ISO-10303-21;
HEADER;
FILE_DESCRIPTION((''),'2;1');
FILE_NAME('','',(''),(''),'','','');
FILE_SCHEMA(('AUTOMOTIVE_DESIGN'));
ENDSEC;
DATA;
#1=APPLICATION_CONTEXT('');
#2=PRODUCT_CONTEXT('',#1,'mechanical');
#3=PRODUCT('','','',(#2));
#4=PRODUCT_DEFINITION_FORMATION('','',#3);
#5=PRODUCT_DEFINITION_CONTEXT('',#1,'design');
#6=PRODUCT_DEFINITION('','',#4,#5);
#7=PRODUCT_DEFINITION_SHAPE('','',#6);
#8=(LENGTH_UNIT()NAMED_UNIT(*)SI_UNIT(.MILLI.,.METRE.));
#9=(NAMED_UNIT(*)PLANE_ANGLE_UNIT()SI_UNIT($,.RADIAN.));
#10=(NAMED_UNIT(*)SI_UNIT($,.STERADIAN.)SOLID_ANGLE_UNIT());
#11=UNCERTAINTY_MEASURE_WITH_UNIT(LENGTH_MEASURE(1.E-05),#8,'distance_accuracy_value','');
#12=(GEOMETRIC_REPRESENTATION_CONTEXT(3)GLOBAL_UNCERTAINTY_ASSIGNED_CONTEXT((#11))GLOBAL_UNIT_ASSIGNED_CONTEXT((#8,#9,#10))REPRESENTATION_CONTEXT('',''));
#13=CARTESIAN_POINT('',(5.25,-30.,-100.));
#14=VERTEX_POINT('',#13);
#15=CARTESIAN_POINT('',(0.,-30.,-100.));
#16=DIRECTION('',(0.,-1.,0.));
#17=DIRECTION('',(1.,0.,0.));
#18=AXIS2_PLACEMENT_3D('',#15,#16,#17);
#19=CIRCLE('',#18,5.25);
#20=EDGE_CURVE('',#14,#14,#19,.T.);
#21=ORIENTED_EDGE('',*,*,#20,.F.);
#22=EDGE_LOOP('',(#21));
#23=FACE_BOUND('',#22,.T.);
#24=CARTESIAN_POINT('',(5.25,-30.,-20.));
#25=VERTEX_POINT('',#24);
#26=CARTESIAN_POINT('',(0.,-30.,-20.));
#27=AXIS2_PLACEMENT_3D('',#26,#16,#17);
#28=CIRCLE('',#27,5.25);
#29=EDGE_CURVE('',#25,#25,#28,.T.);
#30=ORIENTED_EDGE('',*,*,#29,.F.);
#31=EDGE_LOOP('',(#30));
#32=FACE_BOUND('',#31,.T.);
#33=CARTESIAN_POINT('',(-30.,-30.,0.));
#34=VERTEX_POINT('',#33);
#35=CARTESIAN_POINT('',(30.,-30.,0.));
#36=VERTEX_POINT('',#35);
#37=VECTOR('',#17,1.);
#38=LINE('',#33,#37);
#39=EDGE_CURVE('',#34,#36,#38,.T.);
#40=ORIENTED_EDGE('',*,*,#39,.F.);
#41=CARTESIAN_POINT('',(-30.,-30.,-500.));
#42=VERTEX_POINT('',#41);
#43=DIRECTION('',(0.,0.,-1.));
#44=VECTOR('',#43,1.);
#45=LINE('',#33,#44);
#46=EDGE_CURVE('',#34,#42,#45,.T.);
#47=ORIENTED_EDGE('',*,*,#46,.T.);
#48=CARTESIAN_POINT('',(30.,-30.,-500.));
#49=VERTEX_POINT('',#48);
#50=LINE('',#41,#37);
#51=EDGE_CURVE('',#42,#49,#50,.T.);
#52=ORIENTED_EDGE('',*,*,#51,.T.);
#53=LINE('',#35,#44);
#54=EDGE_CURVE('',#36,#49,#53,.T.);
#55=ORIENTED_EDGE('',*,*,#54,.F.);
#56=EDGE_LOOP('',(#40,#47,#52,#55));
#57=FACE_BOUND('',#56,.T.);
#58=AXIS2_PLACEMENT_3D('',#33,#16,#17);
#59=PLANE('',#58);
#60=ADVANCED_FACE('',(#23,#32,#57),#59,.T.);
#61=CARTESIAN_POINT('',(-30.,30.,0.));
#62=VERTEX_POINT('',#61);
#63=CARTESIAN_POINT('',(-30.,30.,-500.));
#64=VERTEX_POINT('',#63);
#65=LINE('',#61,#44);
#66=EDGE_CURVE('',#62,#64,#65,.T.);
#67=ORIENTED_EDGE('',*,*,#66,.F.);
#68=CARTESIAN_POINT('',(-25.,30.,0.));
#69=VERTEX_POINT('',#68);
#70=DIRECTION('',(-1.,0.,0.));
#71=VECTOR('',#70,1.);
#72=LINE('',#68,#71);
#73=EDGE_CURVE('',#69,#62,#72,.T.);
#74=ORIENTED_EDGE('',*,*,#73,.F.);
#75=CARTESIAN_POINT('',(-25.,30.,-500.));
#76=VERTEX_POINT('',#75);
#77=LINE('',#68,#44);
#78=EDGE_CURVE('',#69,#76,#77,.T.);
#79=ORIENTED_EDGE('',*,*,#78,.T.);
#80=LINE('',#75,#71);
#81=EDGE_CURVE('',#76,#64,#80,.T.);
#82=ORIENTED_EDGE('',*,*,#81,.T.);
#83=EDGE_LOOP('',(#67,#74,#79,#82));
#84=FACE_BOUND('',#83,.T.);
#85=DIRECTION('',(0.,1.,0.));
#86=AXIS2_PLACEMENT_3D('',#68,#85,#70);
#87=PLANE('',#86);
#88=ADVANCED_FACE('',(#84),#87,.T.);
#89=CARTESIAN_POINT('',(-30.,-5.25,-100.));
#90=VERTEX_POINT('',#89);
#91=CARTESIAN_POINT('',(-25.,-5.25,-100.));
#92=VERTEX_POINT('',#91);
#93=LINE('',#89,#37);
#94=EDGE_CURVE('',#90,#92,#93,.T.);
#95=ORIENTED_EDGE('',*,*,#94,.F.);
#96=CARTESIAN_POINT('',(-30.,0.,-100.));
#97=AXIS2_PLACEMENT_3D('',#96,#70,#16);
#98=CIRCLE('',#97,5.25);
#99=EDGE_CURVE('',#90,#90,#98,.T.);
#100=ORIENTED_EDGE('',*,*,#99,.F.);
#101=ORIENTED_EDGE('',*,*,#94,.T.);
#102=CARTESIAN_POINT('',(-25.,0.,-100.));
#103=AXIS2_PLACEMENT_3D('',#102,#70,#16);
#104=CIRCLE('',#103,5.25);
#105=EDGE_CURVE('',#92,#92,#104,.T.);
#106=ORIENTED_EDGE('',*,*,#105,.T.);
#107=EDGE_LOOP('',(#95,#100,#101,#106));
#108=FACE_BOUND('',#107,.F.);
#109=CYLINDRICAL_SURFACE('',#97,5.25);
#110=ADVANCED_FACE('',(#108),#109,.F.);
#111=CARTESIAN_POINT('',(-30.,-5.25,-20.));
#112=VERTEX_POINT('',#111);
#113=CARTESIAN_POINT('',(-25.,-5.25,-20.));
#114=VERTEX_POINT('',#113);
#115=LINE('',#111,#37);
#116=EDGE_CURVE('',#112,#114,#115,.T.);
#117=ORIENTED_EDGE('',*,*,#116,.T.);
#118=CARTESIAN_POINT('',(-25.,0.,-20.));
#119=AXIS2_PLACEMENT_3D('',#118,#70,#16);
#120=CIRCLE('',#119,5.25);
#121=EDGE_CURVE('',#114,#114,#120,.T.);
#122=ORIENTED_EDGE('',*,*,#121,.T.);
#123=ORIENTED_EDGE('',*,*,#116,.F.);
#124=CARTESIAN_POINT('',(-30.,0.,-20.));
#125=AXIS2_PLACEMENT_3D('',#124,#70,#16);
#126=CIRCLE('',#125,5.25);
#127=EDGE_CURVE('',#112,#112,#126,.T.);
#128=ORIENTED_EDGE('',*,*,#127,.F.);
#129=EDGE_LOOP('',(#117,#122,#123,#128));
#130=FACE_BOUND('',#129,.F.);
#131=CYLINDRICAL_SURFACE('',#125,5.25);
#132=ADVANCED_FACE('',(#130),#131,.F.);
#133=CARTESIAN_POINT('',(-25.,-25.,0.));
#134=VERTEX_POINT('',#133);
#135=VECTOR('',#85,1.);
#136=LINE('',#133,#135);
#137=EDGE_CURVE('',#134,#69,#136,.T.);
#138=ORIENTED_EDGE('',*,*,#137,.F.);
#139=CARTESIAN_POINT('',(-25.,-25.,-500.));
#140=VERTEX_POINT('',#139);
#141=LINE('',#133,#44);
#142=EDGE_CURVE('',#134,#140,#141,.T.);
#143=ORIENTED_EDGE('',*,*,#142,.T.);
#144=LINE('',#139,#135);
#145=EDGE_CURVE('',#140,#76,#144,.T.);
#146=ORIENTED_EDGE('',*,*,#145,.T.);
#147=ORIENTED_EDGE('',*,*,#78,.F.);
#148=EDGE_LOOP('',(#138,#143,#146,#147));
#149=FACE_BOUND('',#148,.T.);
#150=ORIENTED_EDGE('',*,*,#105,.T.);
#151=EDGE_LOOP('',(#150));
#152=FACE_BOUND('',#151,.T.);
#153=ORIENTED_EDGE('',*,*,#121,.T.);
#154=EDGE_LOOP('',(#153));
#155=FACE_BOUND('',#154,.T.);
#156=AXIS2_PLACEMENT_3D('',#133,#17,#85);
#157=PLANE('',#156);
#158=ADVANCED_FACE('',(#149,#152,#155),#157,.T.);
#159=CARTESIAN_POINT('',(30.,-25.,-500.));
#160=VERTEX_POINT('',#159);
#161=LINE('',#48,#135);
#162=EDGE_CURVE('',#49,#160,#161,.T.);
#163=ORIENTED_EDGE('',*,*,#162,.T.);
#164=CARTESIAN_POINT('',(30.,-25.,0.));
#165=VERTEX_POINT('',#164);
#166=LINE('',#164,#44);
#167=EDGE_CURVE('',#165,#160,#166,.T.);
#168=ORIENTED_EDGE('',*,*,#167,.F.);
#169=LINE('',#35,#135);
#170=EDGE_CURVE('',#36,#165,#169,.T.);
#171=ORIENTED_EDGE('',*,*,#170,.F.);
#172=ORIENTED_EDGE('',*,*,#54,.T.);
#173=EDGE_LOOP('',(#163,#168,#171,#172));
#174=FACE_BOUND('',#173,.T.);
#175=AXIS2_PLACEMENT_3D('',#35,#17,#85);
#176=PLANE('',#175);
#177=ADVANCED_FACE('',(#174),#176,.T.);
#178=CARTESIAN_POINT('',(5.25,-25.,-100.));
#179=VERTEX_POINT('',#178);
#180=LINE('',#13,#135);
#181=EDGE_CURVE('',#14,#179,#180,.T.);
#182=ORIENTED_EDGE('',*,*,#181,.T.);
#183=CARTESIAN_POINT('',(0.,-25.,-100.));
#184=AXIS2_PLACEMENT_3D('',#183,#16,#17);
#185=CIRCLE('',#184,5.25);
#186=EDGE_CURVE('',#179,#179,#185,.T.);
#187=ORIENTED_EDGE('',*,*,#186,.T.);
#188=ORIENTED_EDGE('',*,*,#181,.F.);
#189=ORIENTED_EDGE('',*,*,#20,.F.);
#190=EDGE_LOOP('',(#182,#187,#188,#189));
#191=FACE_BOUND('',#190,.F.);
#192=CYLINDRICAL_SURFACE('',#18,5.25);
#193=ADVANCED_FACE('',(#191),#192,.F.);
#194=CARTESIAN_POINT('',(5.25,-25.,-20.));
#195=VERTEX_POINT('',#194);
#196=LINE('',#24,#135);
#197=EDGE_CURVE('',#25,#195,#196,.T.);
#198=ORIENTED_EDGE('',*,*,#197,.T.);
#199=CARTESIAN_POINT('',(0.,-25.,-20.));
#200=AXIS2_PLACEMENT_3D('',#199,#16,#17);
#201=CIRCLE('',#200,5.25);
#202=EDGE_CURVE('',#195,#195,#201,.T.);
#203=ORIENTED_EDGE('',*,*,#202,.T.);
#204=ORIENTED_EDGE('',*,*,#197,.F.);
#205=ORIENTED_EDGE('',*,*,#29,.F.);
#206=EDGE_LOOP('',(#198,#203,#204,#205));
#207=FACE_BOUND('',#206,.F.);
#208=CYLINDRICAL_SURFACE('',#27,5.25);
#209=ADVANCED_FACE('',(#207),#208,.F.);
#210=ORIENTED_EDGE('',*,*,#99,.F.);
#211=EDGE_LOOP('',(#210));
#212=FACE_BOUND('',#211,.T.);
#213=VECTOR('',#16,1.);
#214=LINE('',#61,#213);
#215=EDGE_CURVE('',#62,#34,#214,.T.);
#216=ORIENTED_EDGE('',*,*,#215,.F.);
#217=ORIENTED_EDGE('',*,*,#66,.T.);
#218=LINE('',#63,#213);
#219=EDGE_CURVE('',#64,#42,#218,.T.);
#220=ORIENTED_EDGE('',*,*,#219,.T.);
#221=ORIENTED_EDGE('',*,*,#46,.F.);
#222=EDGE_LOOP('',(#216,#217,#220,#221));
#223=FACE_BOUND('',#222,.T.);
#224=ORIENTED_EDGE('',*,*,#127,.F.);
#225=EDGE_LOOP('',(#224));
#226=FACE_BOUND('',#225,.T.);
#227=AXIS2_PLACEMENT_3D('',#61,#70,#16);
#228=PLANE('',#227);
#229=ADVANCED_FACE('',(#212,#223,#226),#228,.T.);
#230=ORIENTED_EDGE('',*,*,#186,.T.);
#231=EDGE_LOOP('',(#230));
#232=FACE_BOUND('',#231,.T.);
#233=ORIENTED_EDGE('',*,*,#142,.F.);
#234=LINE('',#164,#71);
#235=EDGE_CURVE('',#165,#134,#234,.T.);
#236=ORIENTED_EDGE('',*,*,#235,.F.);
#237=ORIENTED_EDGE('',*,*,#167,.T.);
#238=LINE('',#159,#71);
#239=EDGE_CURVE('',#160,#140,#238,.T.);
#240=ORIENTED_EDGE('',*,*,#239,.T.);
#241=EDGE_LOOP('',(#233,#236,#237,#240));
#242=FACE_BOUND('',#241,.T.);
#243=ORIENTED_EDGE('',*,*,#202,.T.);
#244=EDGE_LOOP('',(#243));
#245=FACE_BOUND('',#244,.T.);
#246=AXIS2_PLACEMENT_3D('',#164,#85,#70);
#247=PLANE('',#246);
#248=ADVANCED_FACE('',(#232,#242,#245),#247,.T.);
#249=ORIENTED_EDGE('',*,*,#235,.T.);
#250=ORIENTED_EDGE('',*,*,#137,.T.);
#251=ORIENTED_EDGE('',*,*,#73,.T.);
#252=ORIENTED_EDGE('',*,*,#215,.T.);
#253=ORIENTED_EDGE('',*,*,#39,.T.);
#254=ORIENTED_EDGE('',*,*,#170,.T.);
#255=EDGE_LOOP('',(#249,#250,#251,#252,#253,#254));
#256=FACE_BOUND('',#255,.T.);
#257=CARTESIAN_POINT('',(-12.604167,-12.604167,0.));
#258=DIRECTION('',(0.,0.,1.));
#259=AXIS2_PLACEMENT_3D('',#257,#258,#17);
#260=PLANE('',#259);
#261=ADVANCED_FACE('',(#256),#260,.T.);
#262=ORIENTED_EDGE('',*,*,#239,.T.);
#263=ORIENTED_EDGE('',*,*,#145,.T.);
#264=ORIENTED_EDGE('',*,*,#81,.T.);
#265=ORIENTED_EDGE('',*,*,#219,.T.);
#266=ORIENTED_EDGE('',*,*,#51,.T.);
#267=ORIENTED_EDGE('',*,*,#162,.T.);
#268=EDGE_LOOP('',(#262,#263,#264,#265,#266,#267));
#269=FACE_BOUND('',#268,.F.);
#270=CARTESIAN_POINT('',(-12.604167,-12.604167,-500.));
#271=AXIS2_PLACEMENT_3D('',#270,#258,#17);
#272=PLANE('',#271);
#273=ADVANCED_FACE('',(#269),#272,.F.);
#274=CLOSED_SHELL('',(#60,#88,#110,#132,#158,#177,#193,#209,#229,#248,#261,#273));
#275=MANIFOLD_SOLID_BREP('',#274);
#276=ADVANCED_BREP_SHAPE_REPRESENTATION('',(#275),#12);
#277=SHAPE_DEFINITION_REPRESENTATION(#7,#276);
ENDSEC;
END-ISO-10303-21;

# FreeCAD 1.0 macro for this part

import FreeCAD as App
import Part
import Sketcher

V = App.Vector


def add_polygon(sketch, points):
    """Adds a closed chain of lines whose ends are joined by coincident constraints."""
    first, n = sketch.GeometryCount, len(points)
    for a, b in zip(points, points[1:] + points[:1]):
        sketch.addGeometry(Part.LineSegment(App.Vector(*a, 0), App.Vector(*b, 0)), False)
    for i in range(n):
        sketch.addConstraint(Sketcher.Constraint("Coincident", first + i, 2, first + (i + 1) % n, 1))

doc = App.newDocument("Part")
params = doc.addObject("Spreadsheet::Sheet", "Params")
for row, (alias, value) in enumerate([
    ("sketch1_width", "5 mm"),
    ("sketch1_width2", "60 mm"),
    ("pad1_length", "500 mm"),
    ("sketch2_diameter", "10.5 mm"),
    ("pocket1_length", "10 mm"),
    ("sketch3_diameter", "10.5 mm"),
    ("pocket2_length", "10 mm"),
], start=1):
    params.set(f"A{row}", alias)
    params.set(f"B{row}", "=" + value)
    params.setAlias(f"B{row}", alias)

body = doc.addObject("PartDesign::Body", "Body")

sketch1 = body.newObject("Sketcher::SketchObject", "Sketch")
sketch1.AttachmentSupport = (doc.getObject("XY_Plane"), [""])
sketch1.MapMode = "FlatFace"
add_polygon(sketch1, [(-25, 30), (-30, 30), (-30, -30), (30, -30), (30, -25), (-25, -25)])
sketch1.addConstraint(Sketcher.Constraint("Horizontal", 0))
sketch1.addConstraint(Sketcher.Constraint("Vertical", 1))
sketch1.addConstraint(Sketcher.Constraint("Horizontal", 2))
sketch1.addConstraint(Sketcher.Constraint("Vertical", 3))
sketch1.addConstraint(Sketcher.Constraint("Horizontal", 4))
sketch1.addConstraint(Sketcher.Constraint("Vertical", 5))
sketch1.addConstraint(Sketcher.Constraint("Symmetric", 0, 2, 2, 2, -1, 1))
sketch1.addConstraint(Sketcher.Constraint("Equal", 2, 1))
sketch1.addConstraint(Sketcher.Constraint("Equal", 0, 3))
sketch1.addConstraint(Sketcher.Constraint("DistanceX", 0, 2, 0, 1, 5.0))
sketch1.addConstraint(Sketcher.Constraint("DistanceX", 2, 1, 2, 2, 60.0))
sketch1.setExpression("Constraints[15]", "Params.sketch1_width")
sketch1.setExpression("Constraints[16]", "Params.sketch1_width2")
pad1 = body.newObject("PartDesign::Pad", "Pad")
pad1.Profile = sketch1
pad1.setExpression("Length", "Params.pad1_length")
pad1.Reversed = True

sketch2 = body.newObject("Sketcher::SketchObject", "Sketch001")
sketch2.AttachmentSupport = (doc.getObject("XZ_Plane"), [""])
sketch2.MapMode = "FlatFace"
sketch2.AttachmentOffset = App.Placement(V(0, 0, 30), App.Rotation())
sketch2.addGeometry(Part.Circle(V(0, -20, 0), V(0, 0, 1), 5.25), False)
sketch2.addGeometry(Part.Circle(V(0, -100, 0), V(0, 0, 1), 5.25), False)
sketch2.addConstraint(Sketcher.Constraint("Equal", 0, 1))
sketch2.addConstraint(Sketcher.Constraint("PointOnObject", 0, 3, -2))
sketch2.addConstraint(Sketcher.Constraint("PointOnObject", 1, 3, -2))
sketch2.addConstraint(Sketcher.Constraint("Diameter", 0, 10.5))
sketch2.addConstraint(Sketcher.Constraint("DistanceY", 0, 3, -1, 1, 20.0))
sketch2.addConstraint(Sketcher.Constraint("DistanceY", 1, 3, -1, 1, 100.0))
sketch2.setExpression("Constraints[3]", "Params.sketch2_diameter")
pocket1 = body.newObject("PartDesign::Pocket", "Pocket")
pocket1.Profile = sketch2
pocket1.setExpression("Length", "Params.pocket1_length")

sketch3 = body.newObject("Sketcher::SketchObject", "Sketch002")
sketch3.AttachmentSupport = (doc.getObject("YZ_Plane"), [""])
sketch3.MapMode = "FlatFace"
sketch3.AttachmentOffset = App.Placement(V(0, 0, -30), App.Rotation())
sketch3.addGeometry(Part.Circle(V(0, -20, 0), V(0, 0, 1), 5.25), False)
sketch3.addGeometry(Part.Circle(V(0, -100, 0), V(0, 0, 1), 5.25), False)
sketch3.addConstraint(Sketcher.Constraint("Equal", 0, 1))
sketch3.addConstraint(Sketcher.Constraint("PointOnObject", 0, 3, -2))
sketch3.addConstraint(Sketcher.Constraint("PointOnObject", 1, 3, -2))
sketch3.addConstraint(Sketcher.Constraint("Diameter", 0, 10.5))
sketch3.addConstraint(Sketcher.Constraint("DistanceY", 0, 3, -1, 1, 20.0))
sketch3.addConstraint(Sketcher.Constraint("DistanceY", 1, 3, -1, 1, 100.0))
sketch3.setExpression("Constraints[3]", "Params.sketch3_diameter")
pocket2 = body.newObject("PartDesign::Pocket", "Pocket001")
pocket2.Profile = sketch3
pocket2.setExpression("Length", "Params.pocket2_length")
pocket2.Reversed = True

doc.recompute()
